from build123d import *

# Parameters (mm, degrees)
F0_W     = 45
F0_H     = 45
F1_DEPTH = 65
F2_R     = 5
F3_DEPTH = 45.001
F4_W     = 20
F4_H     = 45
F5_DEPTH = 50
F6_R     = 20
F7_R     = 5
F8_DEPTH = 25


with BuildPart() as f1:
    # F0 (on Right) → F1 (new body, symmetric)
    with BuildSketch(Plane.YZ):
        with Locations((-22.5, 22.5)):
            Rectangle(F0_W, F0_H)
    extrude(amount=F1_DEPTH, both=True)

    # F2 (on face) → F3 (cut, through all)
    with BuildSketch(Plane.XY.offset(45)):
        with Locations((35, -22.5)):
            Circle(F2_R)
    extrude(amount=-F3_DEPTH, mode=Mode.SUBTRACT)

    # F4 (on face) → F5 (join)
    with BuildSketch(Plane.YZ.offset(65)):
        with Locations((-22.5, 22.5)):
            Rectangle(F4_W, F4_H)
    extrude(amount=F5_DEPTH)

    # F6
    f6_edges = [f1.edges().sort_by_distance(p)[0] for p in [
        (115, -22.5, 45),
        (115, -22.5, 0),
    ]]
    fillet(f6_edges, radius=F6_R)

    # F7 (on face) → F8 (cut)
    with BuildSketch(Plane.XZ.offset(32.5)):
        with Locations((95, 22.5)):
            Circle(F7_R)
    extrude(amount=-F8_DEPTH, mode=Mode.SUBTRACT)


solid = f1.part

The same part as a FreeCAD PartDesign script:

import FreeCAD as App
import Part
import Sketcher
from FreeCAD import Vector


def edges_at(feature, points):
    """Names of the edges that pass closest to the given points."""
    edges = feature.Shape.Edges
    near = lambda p: min(range(len(edges)), key=lambda i: edges[i].distToShape(Part.Vertex(*p))[0])
    return sorted({f"Edge{near(p) + 1}" for p in points})


def add_polygon(sketch, points):
    """Adds a closed chain of lines whose ends are joined by coincident constraints."""
    first, n = sketch.GeometryCount, len(points)
    for a, b in zip(points, points[1:] + points[:1]):
        sketch.addGeometry(Part.LineSegment(App.Vector(*a, 0), App.Vector(*b, 0)), False)
    for i in range(n):
        sketch.addConstraint(Sketcher.Constraint("Coincident", first + i, 2, first + (i + 1) % n, 1))

doc = App.newDocument("Part")
body = doc.addObject("PartDesign::Body", "Body")

# Sketch on YZ plane
sketch1 = body.newObject("Sketcher::SketchObject", "Sketch")
sketch1.AttachmentSupport = (doc.getObject("YZ_Plane"), [""])
sketch1.MapMode = "FlatFace"
add_polygon(sketch1, [(-45, 45), (-45, 0), (0, 0), (0, 45)])  # lines 0-3
sketch1.addConstraint(Sketcher.Constraint("Vertical", 0))
sketch1.addConstraint(Sketcher.Constraint("Horizontal", 1))
sketch1.addConstraint(Sketcher.Constraint("Vertical", 2))
sketch1.addConstraint(Sketcher.Constraint("Horizontal", 3))
sketch1.addConstraint(Sketcher.Constraint("Coincident", 1, 2, -1, 1))
sketch1.addConstraint(Sketcher.Constraint("Equal", 3, 0))
sketch1.addConstraint(Sketcher.Constraint("DistanceX", 1, 1, 1, 2, 45.0))
pad1 = body.newObject("PartDesign::Pad", "Pad")
pad1.Profile = sketch1
pad1.Length = 130
pad1.Midplane = True

# Sketch on XY plane
sketch2 = body.newObject("Sketcher::SketchObject", "Sketch001")
sketch2.AttachmentSupport = (doc.getObject("XY_Plane"), [""])
sketch2.MapMode = "FlatFace"
sketch2.AttachmentOffset = App.Placement(Vector(0, 0, 45), App.Rotation())
sketch2.addGeometry(Part.Circle(Vector(35, -22, 0), Vector(0, 0, 1), 5), False)
sketch2.addConstraint(Sketcher.Constraint("Diameter", 0, 10.0))
sketch2.addConstraint(Sketcher.Constraint("DistanceX", -1, 1, 0, 3, 35.0))
sketch2.addConstraint(Sketcher.Constraint("DistanceY", 0, 3, -1, 1, 22.5))
pocket1 = body.newObject("PartDesign::Pocket", "Pocket")
pocket1.Profile = sketch2
pocket1.Type = "ThroughAll"

# Sketch on YZ plane
sketch3 = body.newObject("Sketcher::SketchObject", "Sketch002")
sketch3.AttachmentSupport = (doc.getObject("YZ_Plane"), [""])
sketch3.MapMode = "FlatFace"
sketch3.AttachmentOffset = App.Placement(Vector(0, 0, 65), App.Rotation())
add_polygon(sketch3, [(-32, 45), (-32, 0), (-12, 0), (-12, 45)])  # lines 0-3
sketch3.addConstraint(Sketcher.Constraint("Vertical", 0))
sketch3.addConstraint(Sketcher.Constraint("Horizontal", 1))
sketch3.addConstraint(Sketcher.Constraint("Vertical", 2))
sketch3.addConstraint(Sketcher.Constraint("Horizontal", 3))
sketch3.addConstraint(Sketcher.Constraint("PointOnObject", 0, 2, -1))
sketch3.addConstraint(Sketcher.Constraint("DistanceX", 1, 1, 1, 2, 20.0))
sketch3.addConstraint(Sketcher.Constraint("DistanceY", 0, 2, 0, 1, 45.0))
sketch3.addConstraint(Sketcher.Constraint("DistanceX", 0, 2, -1, 1, 32.5))
pad2 = body.newObject("PartDesign::Pad", "Pad001")
pad2.Profile = sketch3
pad2.Length = 50
doc.recompute()

fillet = body.newObject("PartDesign::Fillet", "Fillet")
fillet.Base = (pad2, edges_at(pad2, [(115, -22.5, 45), (115, -22.5, 0)]))
fillet.Radius = 20

# Sketch on XZ plane
sketch4 = body.newObject("Sketcher::SketchObject", "Sketch003")
sketch4.AttachmentSupport = (doc.getObject("XZ_Plane"), [""])
sketch4.MapMode = "FlatFace"
sketch4.AttachmentOffset = App.Placement(Vector(0, 0, 32.5), App.Rotation())
sketch4.addGeometry(Part.Circle(Vector(95, 22, 0), Vector(0, 0, 1), 5), False)
sketch4.addConstraint(Sketcher.Constraint("Diameter", 0, 10.0))
sketch4.addConstraint(Sketcher.Constraint("DistanceX", -1, 1, 0, 3, 95.0))
sketch4.addConstraint(Sketcher.Constraint("DistanceY", -1, 1, 0, 3, 22.5))
pocket2 = body.newObject("PartDesign::Pocket", "Pocket001")
pocket2.Profile = sketch4
pocket2.Length = 25

doc.recompute()
